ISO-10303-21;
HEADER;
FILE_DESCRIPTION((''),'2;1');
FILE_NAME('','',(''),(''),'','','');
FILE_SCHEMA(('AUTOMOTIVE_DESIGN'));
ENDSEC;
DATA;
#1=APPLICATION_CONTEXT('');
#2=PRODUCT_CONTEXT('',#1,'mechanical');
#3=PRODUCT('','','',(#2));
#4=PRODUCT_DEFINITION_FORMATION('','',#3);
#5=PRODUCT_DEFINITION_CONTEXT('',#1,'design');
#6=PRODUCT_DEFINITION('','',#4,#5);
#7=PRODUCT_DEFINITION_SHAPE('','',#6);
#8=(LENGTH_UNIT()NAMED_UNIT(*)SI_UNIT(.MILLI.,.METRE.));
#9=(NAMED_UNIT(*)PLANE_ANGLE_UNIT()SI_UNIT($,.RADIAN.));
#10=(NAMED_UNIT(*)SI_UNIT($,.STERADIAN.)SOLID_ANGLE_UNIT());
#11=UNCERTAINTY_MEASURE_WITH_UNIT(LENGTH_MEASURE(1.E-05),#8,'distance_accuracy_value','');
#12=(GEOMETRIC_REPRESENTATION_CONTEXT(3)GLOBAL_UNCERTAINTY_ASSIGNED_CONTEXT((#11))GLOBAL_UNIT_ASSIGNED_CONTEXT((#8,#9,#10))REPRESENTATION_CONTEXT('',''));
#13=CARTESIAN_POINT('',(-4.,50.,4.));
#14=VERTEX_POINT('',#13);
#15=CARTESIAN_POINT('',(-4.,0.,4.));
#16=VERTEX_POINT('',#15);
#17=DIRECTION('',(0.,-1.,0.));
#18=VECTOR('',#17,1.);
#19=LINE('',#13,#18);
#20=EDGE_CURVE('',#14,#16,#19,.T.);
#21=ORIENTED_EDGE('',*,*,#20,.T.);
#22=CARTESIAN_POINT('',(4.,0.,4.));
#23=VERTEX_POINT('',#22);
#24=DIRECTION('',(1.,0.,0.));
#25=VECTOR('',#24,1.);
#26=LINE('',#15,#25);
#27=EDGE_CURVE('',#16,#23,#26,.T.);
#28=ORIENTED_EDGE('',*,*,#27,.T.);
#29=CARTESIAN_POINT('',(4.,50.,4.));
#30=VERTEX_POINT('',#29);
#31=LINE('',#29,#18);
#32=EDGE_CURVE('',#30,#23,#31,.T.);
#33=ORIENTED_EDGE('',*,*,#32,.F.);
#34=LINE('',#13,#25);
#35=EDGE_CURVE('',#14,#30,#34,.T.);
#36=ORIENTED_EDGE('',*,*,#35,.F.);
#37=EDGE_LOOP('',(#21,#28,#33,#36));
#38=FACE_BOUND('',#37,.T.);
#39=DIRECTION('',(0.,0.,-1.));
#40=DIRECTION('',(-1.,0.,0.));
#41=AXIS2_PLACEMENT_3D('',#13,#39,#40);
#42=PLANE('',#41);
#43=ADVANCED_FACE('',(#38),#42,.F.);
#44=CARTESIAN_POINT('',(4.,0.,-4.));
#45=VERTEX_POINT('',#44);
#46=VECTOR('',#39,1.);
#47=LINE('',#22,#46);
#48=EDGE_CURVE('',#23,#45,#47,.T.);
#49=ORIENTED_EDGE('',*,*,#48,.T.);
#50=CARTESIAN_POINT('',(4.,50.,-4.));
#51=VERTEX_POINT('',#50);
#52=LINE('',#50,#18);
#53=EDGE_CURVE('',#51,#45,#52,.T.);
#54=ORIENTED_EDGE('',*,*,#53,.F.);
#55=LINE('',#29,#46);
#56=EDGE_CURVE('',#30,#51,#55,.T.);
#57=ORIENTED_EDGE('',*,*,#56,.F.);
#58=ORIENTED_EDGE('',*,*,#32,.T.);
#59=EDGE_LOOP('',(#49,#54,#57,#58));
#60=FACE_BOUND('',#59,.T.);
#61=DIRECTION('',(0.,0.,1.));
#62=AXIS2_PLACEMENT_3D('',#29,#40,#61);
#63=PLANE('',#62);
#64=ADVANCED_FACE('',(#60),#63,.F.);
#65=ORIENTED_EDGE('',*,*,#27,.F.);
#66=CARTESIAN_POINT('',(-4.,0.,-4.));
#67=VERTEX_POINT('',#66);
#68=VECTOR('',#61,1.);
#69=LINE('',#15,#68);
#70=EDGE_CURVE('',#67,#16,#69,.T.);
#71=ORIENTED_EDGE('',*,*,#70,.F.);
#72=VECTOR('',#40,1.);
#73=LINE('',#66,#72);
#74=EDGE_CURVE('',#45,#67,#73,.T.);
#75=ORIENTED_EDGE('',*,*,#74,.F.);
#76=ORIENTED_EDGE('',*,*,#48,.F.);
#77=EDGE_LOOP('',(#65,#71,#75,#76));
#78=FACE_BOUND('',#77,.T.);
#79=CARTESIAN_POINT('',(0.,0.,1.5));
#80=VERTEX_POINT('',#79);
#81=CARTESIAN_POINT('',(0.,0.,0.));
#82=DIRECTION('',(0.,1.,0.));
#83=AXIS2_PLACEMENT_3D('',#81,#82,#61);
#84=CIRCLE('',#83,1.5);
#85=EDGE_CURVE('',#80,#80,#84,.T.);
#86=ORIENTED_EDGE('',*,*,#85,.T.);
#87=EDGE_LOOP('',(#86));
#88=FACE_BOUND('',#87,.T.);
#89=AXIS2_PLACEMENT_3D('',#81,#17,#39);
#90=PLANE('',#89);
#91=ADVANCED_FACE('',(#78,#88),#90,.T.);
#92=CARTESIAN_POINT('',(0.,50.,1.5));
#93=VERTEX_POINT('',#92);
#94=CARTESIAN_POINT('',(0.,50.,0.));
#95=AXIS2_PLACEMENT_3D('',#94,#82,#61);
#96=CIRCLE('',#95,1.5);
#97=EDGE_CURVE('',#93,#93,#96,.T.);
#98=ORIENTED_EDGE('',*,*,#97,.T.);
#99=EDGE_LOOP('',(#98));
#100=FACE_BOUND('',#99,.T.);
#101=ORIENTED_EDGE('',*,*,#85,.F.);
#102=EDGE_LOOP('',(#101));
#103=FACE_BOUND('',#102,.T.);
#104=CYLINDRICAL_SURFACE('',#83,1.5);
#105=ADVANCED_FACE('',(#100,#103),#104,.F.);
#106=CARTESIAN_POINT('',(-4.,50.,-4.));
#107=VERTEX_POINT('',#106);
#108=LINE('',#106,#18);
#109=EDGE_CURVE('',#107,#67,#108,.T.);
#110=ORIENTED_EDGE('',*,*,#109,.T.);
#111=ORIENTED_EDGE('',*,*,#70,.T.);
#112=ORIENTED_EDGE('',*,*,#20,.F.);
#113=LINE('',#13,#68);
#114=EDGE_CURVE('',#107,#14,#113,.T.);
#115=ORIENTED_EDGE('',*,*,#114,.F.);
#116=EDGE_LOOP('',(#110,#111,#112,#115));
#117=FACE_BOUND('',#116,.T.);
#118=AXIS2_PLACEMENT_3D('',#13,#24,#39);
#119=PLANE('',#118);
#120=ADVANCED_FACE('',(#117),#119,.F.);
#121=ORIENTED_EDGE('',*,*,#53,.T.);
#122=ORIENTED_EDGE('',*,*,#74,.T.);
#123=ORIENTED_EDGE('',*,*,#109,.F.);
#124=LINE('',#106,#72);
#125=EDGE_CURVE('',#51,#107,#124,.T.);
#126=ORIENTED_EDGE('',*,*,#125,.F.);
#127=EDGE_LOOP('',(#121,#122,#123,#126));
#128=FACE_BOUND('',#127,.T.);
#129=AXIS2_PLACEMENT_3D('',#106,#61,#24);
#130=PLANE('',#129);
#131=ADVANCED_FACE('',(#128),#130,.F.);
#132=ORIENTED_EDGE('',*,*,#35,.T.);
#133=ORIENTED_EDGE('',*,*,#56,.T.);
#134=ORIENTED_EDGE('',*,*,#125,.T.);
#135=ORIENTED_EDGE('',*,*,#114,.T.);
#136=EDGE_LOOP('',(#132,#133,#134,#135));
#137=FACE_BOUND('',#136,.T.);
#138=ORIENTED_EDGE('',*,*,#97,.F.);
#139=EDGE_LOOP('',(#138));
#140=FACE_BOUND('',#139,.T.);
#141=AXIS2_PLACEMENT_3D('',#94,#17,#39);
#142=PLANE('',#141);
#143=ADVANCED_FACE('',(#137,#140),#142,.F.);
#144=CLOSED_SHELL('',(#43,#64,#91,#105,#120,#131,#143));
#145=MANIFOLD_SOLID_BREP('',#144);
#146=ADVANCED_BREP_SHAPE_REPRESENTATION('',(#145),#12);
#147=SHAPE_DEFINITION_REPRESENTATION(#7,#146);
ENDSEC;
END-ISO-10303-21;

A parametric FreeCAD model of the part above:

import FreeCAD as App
import Part
import Sketcher
from FreeCAD import Vector
Q = App.Units.Quantity


def add_polygon(sketch, points):
    """Adds a closed chain of lines whose ends are joined by coincident constraints."""
    first, n = sketch.GeometryCount, len(points)
    for a, b in zip(points, points[1:] + points[:1]):
        sketch.addGeometry(Part.LineSegment(App.Vector(*a, 0), App.Vector(*b, 0)), False)
    for i in range(n):
        sketch.addConstraint(Sketcher.Constraint("Coincident", first + i, 2, first + (i + 1) % n, 1))

doc = App.newDocument("Part")
body = doc.addObject("PartDesign::Body", "Body")

# Sketch on XZ plane
sketch1 = doc.addObject("Sketcher::SketchObject", "Sketch")
body.addObject(sketch1)
sketch1.AttachmentSupport = (doc.XZ_Plane, [""])
sketch1.MapMode = "FlatFace"
add_polygon(sketch1, [(-4, -4), (-4, 4), (4, 4), (4, -4)])  # lines 0-3
sketch1.addConstraint([
    Sketcher.Constraint("Vertical", 0),
    Sketcher.Constraint("Horizontal", 1),
    Sketcher.Constraint("Vertical", 2),
    Sketcher.Constraint("Horizontal", 3),
    Sketcher.Constraint("Symmetric", 0, 2, 2, 2, -1, 1),
    Sketcher.Constraint("Equal", 3, 0),
    Sketcher.Constraint("DistanceX", 1, 1, 1, 2, Q("8 mm")),
])
pad1 = doc.addObject("PartDesign::Pad", "Pad")
body.addObject(pad1)
pad1.Profile = sketch1
pad1.Length = 50
pad1.Reversed = True

# Sketch on XZ plane
sketch2 = doc.addObject("Sketcher::SketchObject", "Sketch001")
body.addObject(sketch2)
sketch2.AttachmentSupport = (doc.XZ_Plane, [""])
sketch2.MapMode = "FlatFace"
sketch2.AttachmentOffset = App.Placement(Vector(0, 0, -50), App.Rotation())
sketch2.addGeometry(Part.Circle(Vector(0, 0, 0), Vector(0, 0, 1), 1.5), False)
sketch2.addConstraint([
    Sketcher.Constraint("Coincident", 0, 3, -1, 1),
    Sketcher.Constraint("Diameter", 0, Q("3 mm")),
])
pocket1 = doc.addObject("PartDesign::Pocket", "Pocket")
body.addObject(pocket1)
pocket1.Profile = sketch2
pocket1.Type = "ThroughAll"
pocket1.Reversed = True

doc.recompute()
